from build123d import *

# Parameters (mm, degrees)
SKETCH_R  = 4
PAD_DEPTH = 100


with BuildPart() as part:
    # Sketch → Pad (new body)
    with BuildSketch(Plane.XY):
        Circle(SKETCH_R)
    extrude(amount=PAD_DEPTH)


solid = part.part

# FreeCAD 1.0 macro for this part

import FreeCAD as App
import Part
import Sketcher
Q = App.Units.Quantity

doc = App.newDocument("Part")
params = doc.addObject("Spreadsheet::Sheet", "Params")
for row, (alias, value) in enumerate([
    ("sketch1_diameter", "8 mm"),
    ("pad1_length", "100 mm"),
], start=1):
    params.set(f"A{row}", alias)
    params.set(f"B{row}", "=" + value)
    params.setAlias(f"B{row}", alias)

body = doc.addObject("PartDesign::Body", "Body")

# Sketch on XY plane
sketch1 = doc.addObject("Sketcher::SketchObject", "Sketch")
body.addObject(sketch1)
sketch1.AttachmentSupport = (doc.XY_Plane, [""])
sketch1.MapMode = "FlatFace"
sketch1.addGeometry(Part.Circle(App.Vector(0, 0, 0), App.Vector(0, 0, 1), 4), False)
sketch1.addConstraint([
    Sketcher.Constraint("Coincident", 0, 3, -1, 1),
    Sketcher.Constraint("Diameter", 0, Q("8 mm")),
])
sketch1.setExpression("Constraints[1]", "Params.sketch1_diameter")
pad1 = doc.addObject("PartDesign::Pad", "Pad")
body.addObject(pad1)
pad1.Profile = sketch1
pad1.setExpression("Length", "Params.pad1_length")

doc.recompute()
